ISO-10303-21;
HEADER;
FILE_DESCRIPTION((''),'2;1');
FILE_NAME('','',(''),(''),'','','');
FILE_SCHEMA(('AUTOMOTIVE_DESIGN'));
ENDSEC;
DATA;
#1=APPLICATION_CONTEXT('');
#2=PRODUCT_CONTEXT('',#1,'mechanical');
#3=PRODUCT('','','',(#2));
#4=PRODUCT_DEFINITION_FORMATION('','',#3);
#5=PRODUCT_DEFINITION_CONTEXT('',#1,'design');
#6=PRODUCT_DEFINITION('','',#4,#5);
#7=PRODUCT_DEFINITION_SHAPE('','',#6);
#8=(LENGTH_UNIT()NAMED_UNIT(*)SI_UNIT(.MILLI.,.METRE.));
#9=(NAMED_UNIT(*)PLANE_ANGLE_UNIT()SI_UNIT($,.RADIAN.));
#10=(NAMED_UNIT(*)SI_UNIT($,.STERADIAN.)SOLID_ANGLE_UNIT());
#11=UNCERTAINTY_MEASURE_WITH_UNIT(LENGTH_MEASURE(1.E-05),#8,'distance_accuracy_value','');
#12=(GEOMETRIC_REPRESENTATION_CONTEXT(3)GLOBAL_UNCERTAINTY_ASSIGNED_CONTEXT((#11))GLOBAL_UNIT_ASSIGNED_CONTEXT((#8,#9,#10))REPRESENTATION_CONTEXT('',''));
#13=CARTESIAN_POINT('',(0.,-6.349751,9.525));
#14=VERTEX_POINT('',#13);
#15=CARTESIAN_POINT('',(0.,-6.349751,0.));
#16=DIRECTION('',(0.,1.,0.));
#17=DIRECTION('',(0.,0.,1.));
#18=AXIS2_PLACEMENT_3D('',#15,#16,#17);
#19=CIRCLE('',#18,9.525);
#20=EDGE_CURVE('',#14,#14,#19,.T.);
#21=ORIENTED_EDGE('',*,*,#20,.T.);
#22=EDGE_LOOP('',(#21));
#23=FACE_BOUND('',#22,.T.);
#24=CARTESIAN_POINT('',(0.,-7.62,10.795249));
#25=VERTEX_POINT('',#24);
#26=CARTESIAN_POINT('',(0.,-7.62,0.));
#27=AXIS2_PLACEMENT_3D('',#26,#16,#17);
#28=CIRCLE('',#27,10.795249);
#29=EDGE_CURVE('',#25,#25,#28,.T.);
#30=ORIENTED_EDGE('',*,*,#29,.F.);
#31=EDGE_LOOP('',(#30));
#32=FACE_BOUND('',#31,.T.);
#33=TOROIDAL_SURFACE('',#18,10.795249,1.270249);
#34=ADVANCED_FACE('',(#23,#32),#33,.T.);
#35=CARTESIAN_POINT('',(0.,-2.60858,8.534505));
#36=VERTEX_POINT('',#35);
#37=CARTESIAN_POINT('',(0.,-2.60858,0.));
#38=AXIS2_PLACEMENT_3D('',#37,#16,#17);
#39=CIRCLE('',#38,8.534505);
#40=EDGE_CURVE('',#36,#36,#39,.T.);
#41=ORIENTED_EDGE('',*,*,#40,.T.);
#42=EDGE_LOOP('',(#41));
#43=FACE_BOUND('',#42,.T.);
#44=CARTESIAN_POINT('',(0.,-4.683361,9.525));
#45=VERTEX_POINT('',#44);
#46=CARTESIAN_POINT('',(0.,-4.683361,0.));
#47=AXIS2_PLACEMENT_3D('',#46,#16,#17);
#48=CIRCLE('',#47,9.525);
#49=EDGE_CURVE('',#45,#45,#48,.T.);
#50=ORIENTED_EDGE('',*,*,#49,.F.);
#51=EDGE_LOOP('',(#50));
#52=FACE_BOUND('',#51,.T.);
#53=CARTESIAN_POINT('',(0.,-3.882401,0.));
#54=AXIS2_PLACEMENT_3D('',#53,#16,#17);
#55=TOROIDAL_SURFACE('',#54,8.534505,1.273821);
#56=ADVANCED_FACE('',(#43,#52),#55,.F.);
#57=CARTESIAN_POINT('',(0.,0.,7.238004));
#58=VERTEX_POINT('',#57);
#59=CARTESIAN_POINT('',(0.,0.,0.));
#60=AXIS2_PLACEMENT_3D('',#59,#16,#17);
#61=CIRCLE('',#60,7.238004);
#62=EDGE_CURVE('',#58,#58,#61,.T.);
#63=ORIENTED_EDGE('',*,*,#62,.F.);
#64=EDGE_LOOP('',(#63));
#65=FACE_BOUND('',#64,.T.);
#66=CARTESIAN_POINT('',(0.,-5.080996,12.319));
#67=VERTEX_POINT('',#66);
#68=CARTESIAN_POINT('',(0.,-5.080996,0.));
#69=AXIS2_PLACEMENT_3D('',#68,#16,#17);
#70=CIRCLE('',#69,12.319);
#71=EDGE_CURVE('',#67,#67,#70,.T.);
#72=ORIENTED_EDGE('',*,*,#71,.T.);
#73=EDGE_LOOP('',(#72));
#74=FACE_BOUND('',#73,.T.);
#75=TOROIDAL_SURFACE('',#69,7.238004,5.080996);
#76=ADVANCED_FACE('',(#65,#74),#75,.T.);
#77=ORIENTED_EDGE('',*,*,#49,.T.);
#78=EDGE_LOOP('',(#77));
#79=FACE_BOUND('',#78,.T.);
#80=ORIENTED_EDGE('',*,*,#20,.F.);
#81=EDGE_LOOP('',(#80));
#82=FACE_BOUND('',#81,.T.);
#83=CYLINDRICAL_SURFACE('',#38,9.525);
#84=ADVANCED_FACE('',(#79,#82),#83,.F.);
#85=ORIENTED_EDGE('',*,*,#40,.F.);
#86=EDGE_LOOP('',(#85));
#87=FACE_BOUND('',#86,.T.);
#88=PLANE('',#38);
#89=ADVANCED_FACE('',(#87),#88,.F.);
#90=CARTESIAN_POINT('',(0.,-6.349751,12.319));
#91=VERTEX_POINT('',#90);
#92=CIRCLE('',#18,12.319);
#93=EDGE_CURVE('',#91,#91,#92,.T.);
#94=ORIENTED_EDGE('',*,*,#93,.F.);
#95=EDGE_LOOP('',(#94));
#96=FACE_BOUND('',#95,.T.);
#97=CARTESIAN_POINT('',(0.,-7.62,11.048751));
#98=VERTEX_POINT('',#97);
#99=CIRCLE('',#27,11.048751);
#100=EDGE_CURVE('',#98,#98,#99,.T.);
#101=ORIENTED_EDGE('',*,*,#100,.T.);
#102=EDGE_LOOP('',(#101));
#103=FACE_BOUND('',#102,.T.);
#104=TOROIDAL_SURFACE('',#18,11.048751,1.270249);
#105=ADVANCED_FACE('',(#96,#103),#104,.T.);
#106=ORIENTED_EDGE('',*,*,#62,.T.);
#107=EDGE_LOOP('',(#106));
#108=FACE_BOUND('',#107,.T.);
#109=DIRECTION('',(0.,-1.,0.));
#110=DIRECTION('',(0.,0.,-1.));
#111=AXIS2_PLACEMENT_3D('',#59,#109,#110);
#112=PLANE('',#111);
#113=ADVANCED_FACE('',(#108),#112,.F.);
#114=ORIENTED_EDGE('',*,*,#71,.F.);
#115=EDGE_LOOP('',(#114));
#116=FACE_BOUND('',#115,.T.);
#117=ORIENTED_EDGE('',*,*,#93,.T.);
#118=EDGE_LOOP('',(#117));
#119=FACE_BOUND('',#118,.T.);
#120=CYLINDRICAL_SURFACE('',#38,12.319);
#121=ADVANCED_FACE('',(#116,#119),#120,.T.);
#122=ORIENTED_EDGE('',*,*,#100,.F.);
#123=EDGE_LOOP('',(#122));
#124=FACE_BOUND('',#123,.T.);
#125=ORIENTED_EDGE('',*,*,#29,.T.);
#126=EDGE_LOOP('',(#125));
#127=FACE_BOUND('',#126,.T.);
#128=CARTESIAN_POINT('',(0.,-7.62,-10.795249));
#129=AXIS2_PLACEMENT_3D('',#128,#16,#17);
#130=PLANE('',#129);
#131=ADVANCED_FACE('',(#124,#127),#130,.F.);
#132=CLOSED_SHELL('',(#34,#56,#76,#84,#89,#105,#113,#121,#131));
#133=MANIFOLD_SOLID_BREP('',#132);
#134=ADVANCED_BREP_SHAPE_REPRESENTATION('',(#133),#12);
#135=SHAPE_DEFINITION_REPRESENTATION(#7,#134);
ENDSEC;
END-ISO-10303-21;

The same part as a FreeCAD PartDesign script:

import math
import FreeCAD as App
import Part
import Sketcher
Q = App.Units.Quantity

doc = App.newDocument("Part")
body = doc.addObject("PartDesign::Body", "Body")

# Sketch on YZ plane
sketch1 = body.newObject("Sketcher::SketchObject", "Sketch")
sketch1.AttachmentSupport = (doc.getObject("YZ_Plane"), [""])
sketch1.MapMode = "FlatFace"
sketch1.addGeometry([
    Part.LineSegment(App.Vector(-6.35, -12.32, 0), App.Vector(-5.08, -12.32, 0)),  # 0
    Part.ArcOfCircle(Part.Circle(App.Vector(-5.08, -7.24, 0), App.Vector(0, 0, 1), 5.08), math.radians(-90), math.radians(0)),  # 1
    Part.LineSegment(App.Vector(0, -7.24, 0), App.Vector(0, 0, 0)),  # 2
    Part.LineSegment(App.Vector(0, 0, 0), App.Vector(-2.61, 0, 0)),  # 3
    Part.LineSegment(App.Vector(-2.61, 0, 0), App.Vector(-2.61, -8.53, 0)),  # 4
    Part.ArcOfCircle(Part.Circle(App.Vector(-3.88, -8.53, 0), App.Vector(0, 0, 1), 1.27), math.radians(-129), math.radians(0)),  # 5
    Part.LineSegment(App.Vector(-4.68, -9.53, 0), App.Vector(-6.35, -9.53, 0)),  # 6
    Part.ArcOfCircle(Part.Circle(App.Vector(-6.35, -10.8, 0), App.Vector(0, 0, 1), 1.27), math.radians(90), math.radians(180)),  # 7
    Part.LineSegment(App.Vector(-7.62, -10.8, 0), App.Vector(-7.62, -11.05, 0)),  # 8
    Part.ArcOfCircle(Part.Circle(App.Vector(-6.35, -11.05, 0), App.Vector(0, 0, 1), 1.27), math.radians(180), math.radians(270)),  # 9
], False)
sketch1.addConstraint([
    Sketcher.Constraint("Tangent", 0, 2, 1, 1),
    Sketcher.Constraint("Tangent", 1, 2, 2, 1),
    Sketcher.Constraint("Coincident", 2, 2, 3, 1),
    Sketcher.Constraint("Coincident", 3, 2, 4, 1),
    Sketcher.Constraint("Tangent", 4, 2, 5, 2),
    Sketcher.Constraint("Coincident", 5, 1, 6, 1),
    Sketcher.Constraint("Tangent", 6, 2, 7, 1),
    Sketcher.Constraint("Tangent", 7, 2, 8, 1),
    Sketcher.Constraint("Tangent", 8, 2, 9, 1),
    Sketcher.Constraint("Tangent", 9, 2, 0, 1),
    Sketcher.Constraint("Horizontal", 0),
    Sketcher.Constraint("Vertical", 2),
    Sketcher.Constraint("Horizontal", 3),
    Sketcher.Constraint("Vertical", 4),
    Sketcher.Constraint("Horizontal", 6),
    Sketcher.Constraint("Vertical", 8),
    Sketcher.Constraint("Coincident", 2, 2, -1, 1),
    Sketcher.Constraint("Equal", 7, 9),
    Sketcher.Constraint("DistanceX", 7, 2, -1, 1, Q("7.62 mm")),
    Sketcher.Constraint("Radius", 5, Q("1.273821 mm")),
    Sketcher.Constraint("Radius", 7, Q("1.270249 mm")),
    Sketcher.Constraint("DistanceY", 8, 2, 8, 1, Q("0.253502 mm")),
    Sketcher.Constraint("DistanceY", 0, 2, -1, 1, Q("12.319 mm")),
    Sketcher.Constraint("Radius", 1, Q("5.080996 mm")),
    Sketcher.Constraint("DistanceX", 3, 2, 3, 1, Q("2.60858 mm")),
    Sketcher.Constraint("DistanceX", 6, 2, 6, 1, Q("1.66639 mm")),
])
revolution = body.newObject("PartDesign::Revolution", "Revolution")
revolution.Profile = sketch1
revolution.ReferenceAxis = (sketch1, ["H_Axis"])
revolution.Angle = 360

doc.recompute()
